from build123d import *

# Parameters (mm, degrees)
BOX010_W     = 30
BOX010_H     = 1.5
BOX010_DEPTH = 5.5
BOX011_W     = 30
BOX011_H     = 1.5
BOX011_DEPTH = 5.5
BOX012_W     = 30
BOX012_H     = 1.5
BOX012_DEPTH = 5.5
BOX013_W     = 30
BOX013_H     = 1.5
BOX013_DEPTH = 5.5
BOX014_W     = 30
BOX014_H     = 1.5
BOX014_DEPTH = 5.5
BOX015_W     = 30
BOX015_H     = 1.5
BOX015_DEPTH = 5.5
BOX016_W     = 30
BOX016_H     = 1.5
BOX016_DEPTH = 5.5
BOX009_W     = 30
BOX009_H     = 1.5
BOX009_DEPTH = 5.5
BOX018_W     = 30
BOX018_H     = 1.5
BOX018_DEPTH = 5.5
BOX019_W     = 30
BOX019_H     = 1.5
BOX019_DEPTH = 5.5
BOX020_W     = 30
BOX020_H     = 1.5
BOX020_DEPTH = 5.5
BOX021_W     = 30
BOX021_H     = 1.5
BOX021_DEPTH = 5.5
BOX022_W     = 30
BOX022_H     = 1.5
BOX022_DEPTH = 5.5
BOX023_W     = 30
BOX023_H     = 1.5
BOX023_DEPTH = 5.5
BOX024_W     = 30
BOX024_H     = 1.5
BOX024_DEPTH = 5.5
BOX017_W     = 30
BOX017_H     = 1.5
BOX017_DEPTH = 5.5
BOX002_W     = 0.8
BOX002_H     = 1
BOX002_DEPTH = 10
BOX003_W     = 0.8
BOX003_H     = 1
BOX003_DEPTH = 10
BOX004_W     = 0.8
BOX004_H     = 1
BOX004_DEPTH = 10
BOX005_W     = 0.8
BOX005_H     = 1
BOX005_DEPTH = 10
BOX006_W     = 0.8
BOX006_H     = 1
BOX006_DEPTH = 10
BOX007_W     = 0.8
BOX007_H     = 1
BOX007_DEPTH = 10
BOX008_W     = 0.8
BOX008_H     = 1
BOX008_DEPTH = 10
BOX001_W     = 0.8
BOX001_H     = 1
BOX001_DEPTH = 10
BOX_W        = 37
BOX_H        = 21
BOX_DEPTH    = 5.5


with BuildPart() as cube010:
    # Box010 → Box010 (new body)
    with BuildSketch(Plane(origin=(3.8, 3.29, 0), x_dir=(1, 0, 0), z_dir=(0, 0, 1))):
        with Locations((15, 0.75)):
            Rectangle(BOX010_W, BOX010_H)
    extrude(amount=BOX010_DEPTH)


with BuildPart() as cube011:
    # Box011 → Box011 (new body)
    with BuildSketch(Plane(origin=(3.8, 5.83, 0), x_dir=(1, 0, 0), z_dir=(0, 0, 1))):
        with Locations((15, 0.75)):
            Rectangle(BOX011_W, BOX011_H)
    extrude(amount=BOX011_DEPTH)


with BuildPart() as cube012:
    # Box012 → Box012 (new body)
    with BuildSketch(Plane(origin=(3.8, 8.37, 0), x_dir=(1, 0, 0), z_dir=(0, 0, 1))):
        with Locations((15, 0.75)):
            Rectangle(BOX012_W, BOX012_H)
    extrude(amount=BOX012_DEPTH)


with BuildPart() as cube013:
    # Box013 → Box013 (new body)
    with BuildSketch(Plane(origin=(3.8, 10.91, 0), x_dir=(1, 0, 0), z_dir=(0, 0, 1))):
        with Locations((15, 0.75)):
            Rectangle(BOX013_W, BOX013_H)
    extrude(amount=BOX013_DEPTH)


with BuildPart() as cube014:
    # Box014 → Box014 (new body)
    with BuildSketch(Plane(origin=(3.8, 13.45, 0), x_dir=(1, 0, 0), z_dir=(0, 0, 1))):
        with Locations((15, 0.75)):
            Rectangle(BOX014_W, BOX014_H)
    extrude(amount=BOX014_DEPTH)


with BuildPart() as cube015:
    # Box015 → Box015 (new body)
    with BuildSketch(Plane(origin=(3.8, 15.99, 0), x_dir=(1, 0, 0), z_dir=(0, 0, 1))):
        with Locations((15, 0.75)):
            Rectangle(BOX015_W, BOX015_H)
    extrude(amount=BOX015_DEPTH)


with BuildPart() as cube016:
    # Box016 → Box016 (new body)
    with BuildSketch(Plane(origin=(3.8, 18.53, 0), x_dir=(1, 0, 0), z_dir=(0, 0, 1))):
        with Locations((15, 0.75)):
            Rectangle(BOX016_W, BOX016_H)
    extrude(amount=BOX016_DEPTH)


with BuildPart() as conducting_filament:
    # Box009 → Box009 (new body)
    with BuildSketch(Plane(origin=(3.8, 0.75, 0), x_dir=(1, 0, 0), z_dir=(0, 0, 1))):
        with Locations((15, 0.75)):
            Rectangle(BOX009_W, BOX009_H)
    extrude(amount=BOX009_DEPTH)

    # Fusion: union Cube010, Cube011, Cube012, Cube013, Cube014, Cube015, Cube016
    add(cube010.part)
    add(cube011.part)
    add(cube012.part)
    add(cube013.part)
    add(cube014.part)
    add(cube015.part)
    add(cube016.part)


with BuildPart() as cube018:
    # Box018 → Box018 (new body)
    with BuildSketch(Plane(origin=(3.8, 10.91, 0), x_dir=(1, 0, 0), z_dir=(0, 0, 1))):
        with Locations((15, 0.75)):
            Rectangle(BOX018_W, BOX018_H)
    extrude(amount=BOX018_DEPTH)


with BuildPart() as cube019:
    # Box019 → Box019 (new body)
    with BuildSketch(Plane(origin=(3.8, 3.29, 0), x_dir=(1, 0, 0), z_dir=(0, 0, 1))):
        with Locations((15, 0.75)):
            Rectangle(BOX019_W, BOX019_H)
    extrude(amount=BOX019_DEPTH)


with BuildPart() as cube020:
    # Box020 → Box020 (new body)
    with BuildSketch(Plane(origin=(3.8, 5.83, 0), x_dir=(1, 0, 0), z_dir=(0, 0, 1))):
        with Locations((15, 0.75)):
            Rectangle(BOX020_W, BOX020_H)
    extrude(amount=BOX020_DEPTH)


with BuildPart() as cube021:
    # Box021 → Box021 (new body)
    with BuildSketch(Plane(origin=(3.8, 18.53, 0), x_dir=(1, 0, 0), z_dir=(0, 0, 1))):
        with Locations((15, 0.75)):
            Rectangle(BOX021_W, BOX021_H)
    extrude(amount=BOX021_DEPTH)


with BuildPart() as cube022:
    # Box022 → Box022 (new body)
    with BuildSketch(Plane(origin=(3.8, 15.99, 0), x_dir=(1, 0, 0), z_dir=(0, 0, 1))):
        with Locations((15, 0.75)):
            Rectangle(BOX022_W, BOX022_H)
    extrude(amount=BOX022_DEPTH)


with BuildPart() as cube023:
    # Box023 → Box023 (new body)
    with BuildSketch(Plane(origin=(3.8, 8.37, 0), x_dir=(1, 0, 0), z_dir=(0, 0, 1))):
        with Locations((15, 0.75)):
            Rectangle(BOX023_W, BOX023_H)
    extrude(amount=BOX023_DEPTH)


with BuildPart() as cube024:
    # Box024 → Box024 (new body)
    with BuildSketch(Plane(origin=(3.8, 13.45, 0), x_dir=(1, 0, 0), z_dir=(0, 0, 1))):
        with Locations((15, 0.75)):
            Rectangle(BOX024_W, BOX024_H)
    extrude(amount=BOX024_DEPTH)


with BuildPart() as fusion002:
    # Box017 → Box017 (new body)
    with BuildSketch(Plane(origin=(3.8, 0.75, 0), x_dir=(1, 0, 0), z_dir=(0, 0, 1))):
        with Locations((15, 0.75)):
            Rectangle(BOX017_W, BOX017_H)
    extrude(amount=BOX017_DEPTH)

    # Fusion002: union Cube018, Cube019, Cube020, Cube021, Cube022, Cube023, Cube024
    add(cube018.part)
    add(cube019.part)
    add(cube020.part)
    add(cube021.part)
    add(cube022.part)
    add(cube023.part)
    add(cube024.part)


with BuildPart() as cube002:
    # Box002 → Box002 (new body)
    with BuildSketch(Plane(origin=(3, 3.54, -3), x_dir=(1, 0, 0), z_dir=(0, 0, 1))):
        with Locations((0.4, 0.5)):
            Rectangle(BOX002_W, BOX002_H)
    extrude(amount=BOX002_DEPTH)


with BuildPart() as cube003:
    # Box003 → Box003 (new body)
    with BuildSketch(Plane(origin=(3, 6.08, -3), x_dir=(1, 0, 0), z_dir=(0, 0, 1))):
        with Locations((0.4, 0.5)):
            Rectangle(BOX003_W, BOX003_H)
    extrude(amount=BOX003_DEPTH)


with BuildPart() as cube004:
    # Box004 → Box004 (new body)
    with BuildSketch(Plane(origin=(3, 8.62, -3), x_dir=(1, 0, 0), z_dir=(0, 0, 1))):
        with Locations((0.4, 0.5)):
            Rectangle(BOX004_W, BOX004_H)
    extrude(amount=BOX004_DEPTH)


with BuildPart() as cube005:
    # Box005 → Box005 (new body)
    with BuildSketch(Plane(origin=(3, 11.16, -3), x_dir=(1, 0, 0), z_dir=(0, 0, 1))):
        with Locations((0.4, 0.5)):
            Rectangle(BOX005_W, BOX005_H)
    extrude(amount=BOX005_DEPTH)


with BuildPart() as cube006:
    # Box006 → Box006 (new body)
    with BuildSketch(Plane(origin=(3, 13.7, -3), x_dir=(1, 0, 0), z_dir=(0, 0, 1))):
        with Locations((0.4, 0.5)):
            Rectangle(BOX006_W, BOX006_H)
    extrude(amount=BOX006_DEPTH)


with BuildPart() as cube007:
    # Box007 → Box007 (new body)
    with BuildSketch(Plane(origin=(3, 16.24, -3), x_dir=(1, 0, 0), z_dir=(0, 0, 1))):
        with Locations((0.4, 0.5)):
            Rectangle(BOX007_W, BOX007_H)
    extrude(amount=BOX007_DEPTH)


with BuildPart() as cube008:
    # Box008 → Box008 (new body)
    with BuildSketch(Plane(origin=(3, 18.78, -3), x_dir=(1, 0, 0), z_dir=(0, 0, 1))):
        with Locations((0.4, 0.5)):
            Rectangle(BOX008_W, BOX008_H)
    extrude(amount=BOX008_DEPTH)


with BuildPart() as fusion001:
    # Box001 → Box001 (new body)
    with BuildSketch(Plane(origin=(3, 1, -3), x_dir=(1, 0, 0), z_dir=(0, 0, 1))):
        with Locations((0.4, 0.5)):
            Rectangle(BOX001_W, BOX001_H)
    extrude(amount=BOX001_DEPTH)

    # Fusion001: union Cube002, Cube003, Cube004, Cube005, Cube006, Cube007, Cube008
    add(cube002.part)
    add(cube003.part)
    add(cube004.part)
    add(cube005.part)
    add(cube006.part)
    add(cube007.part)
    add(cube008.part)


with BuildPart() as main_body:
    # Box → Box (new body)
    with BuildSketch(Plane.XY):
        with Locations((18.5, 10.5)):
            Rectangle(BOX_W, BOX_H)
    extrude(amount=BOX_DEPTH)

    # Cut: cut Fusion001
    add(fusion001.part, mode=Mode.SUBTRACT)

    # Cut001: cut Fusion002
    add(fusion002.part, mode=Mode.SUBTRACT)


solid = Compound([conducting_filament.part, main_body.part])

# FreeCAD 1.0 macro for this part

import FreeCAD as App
import Part
import Sketcher
Q = App.Units.Quantity

doc = App.newDocument("Part")
body = doc.addObject("PartDesign::Body", "Body")

# Sketch on XY plane
sketch1 = doc.addObject("Sketcher::SketchObject", "Sketch")
body.addObject(sketch1)
sketch1.AttachmentSupport = (doc.XY_Plane, [""])
sketch1.MapMode = "FlatFace"
sketch1.addGeometry([
    Part.LineSegment(App.Vector(3.8, 4.79, 0), App.Vector(3.8, 3.29, 0)),
    Part.LineSegment(App.Vector(3.8, 3.29, 0), App.Vector(33.8, 3.29, 0)),
    Part.LineSegment(App.Vector(33.8, 3.29, 0), App.Vector(33.8, 4.79, 0)),
    Part.LineSegment(App.Vector(33.8, 4.79, 0), App.Vector(3.8, 4.79, 0)),
], False)
sketch1.addConstraint([
    Sketcher.Constraint("Coincident", 0, 2, 1, 1),
    Sketcher.Constraint("Coincident", 1, 2, 2, 1),
    Sketcher.Constraint("Coincident", 2, 2, 3, 1),
    Sketcher.Constraint("Coincident", 3, 2, 0, 1),
    Sketcher.Constraint("Vertical", 0),
    Sketcher.Constraint("Horizontal", 1),
    Sketcher.Constraint("Vertical", 2),
    Sketcher.Constraint("Horizontal", 3),
    Sketcher.Constraint("DistanceX", 1, 1, 1, 2, Q("30 mm")),
    Sketcher.Constraint("DistanceY", 0, 2, 0, 1, Q("1.5 mm")),
    Sketcher.Constraint("DistanceX", -1, 1, 0, 2, Q("3.8 mm")),
    Sketcher.Constraint("DistanceY", -1, 1, 0, 2, Q("3.29 mm")),
])
pad1 = doc.addObject("PartDesign::Pad", "Pad")
body.addObject(pad1)
pad1.Profile = sketch1
pad1.Length = 5.5
body2 = doc.addObject("PartDesign::Body", "Body001")

# Sketch on XY plane
sketch2 = doc.addObject("Sketcher::SketchObject", "Sketch001")
body2.addObject(sketch2)
sketch2.AttachmentSupport = (doc.getObject("XY_Plane001"), [""])
sketch2.MapMode = "FlatFace"
sketch2.addGeometry([
    Part.LineSegment(App.Vector(3.8, 7.33, 0), App.Vector(3.8, 5.83, 0)),
    Part.LineSegment(App.Vector(3.8, 5.83, 0), App.Vector(33.8, 5.83, 0)),
    Part.LineSegment(App.Vector(33.8, 5.83, 0), App.Vector(33.8, 7.33, 0)),
    Part.LineSegment(App.Vector(33.8, 7.33, 0), App.Vector(3.8, 7.33, 0)),
], False)
sketch2.addConstraint([
    Sketcher.Constraint("Coincident", 0, 2, 1, 1),
    Sketcher.Constraint("Coincident", 1, 2, 2, 1),
    Sketcher.Constraint("Coincident", 2, 2, 3, 1),
    Sketcher.Constraint("Coincident", 3, 2, 0, 1),
    Sketcher.Constraint("Vertical", 0),
    Sketcher.Constraint("Horizontal", 1),
    Sketcher.Constraint("Vertical", 2),
    Sketcher.Constraint("Horizontal", 3),
    Sketcher.Constraint("DistanceX", 1, 1, 1, 2, Q("30 mm")),
    Sketcher.Constraint("DistanceY", 0, 2, 0, 1, Q("1.5 mm")),
    Sketcher.Constraint("DistanceX", -1, 1, 0, 2, Q("3.8 mm")),
    Sketcher.Constraint("DistanceY", -1, 1, 0, 2, Q("5.83 mm")),
])
pad2 = doc.addObject("PartDesign::Pad", "Pad001")
body2.addObject(pad2)
pad2.Profile = sketch2
pad2.Length = 5.5
body3 = doc.addObject("PartDesign::Body", "Body002")

# Sketch on XY plane
sketch3 = doc.addObject("Sketcher::SketchObject", "Sketch002")
body3.addObject(sketch3)
sketch3.AttachmentSupport = (doc.getObject("XY_Plane002"), [""])
sketch3.MapMode = "FlatFace"
sketch3.addGeometry([
    Part.LineSegment(App.Vector(3.8, 9.87, 0), App.Vector(3.8, 8.37, 0)),
    Part.LineSegment(App.Vector(3.8, 8.37, 0), App.Vector(33.8, 8.37, 0)),
    Part.LineSegment(App.Vector(33.8, 8.37, 0), App.Vector(33.8, 9.87, 0)),
    Part.LineSegment(App.Vector(33.8, 9.87, 0), App.Vector(3.8, 9.87, 0)),
], False)
sketch3.addConstraint([
    Sketcher.Constraint("Coincident", 0, 2, 1, 1),
    Sketcher.Constraint("Coincident", 1, 2, 2, 1),
    Sketcher.Constraint("Coincident", 2, 2, 3, 1),
    Sketcher.Constraint("Coincident", 3, 2, 0, 1),
    Sketcher.Constraint("Vertical", 0),
    Sketcher.Constraint("Horizontal", 1),
    Sketcher.Constraint("Vertical", 2),
    Sketcher.Constraint("Horizontal", 3),
    Sketcher.Constraint("DistanceX", 1, 1, 1, 2, Q("30 mm")),
    Sketcher.Constraint("DistanceY", 0, 2, 0, 1, Q("1.5 mm")),
    Sketcher.Constraint("DistanceX", -1, 1, 0, 2, Q("3.8 mm")),
    Sketcher.Constraint("DistanceY", -1, 1, 0, 2, Q("8.37 mm")),
])
pad3 = doc.addObject("PartDesign::Pad", "Pad002")
body3.addObject(pad3)
pad3.Profile = sketch3
pad3.Length = 5.5
body4 = doc.addObject("PartDesign::Body", "Body003")

# Sketch on XY plane
sketch4 = doc.addObject("Sketcher::SketchObject", "Sketch003")
body4.addObject(sketch4)
sketch4.AttachmentSupport = (doc.getObject("XY_Plane003"), [""])
sketch4.MapMode = "FlatFace"
sketch4.addGeometry([
    Part.LineSegment(App.Vector(3.8, 12.41, 0), App.Vector(3.8, 10.91, 0)),
    Part.LineSegment(App.Vector(3.8, 10.91, 0), App.Vector(33.8, 10.91, 0)),
    Part.LineSegment(App.Vector(33.8, 10.91, 0), App.Vector(33.8, 12.41, 0)),
    Part.LineSegment(App.Vector(33.8, 12.41, 0), App.Vector(3.8, 12.41, 0)),
], False)
sketch4.addConstraint([
    Sketcher.Constraint("Coincident", 0, 2, 1, 1),
    Sketcher.Constraint("Coincident", 1, 2, 2, 1),
    Sketcher.Constraint("Coincident", 2, 2, 3, 1),
    Sketcher.Constraint("Coincident", 3, 2, 0, 1),
    Sketcher.Constraint("Vertical", 0),
    Sketcher.Constraint("Horizontal", 1),
    Sketcher.Constraint("Vertical", 2),
    Sketcher.Constraint("Horizontal", 3),
    Sketcher.Constraint("DistanceX", 1, 1, 1, 2, Q("30 mm")),
    Sketcher.Constraint("DistanceY", 0, 2, 0, 1, Q("1.5 mm")),
    Sketcher.Constraint("DistanceX", -1, 1, 0, 2, Q("3.8 mm")),
    Sketcher.Constraint("DistanceY", -1, 1, 0, 2, Q("10.91 mm")),
])
pad4 = doc.addObject("PartDesign::Pad", "Pad003")
body4.addObject(pad4)
pad4.Profile = sketch4
pad4.Length = 5.5
body5 = doc.addObject("PartDesign::Body", "Body004")

# Sketch on XY plane
sketch5 = doc.addObject("Sketcher::SketchObject", "Sketch004")
body5.addObject(sketch5)
sketch5.AttachmentSupport = (doc.getObject("XY_Plane004"), [""])
sketch5.MapMode = "FlatFace"
sketch5.addGeometry([
    Part.LineSegment(App.Vector(3.8, 14.95, 0), App.Vector(3.8, 13.45, 0)),
    Part.LineSegment(App.Vector(3.8, 13.45, 0), App.Vector(33.8, 13.45, 0)),
    Part.LineSegment(App.Vector(33.8, 13.45, 0), App.Vector(33.8, 14.95, 0)),
    Part.LineSegment(App.Vector(33.8, 14.95, 0), App.Vector(3.8, 14.95, 0)),
], False)
sketch5.addConstraint([
    Sketcher.Constraint("Coincident", 0, 2, 1, 1),
    Sketcher.Constraint("Coincident", 1, 2, 2, 1),
    Sketcher.Constraint("Coincident", 2, 2, 3, 1),
    Sketcher.Constraint("Coincident", 3, 2, 0, 1),
    Sketcher.Constraint("Vertical", 0),
    Sketcher.Constraint("Horizontal", 1),
    Sketcher.Constraint("Vertical", 2),
    Sketcher.Constraint("Horizontal", 3),
    Sketcher.Constraint("DistanceX", 1, 1, 1, 2, Q("30 mm")),
    Sketcher.Constraint("DistanceY", 0, 2, 0, 1, Q("1.5 mm")),
    Sketcher.Constraint("DistanceX", -1, 1, 0, 2, Q("3.8 mm")),
    Sketcher.Constraint("DistanceY", -1, 1, 0, 2, Q("13.45 mm")),
])
pad5 = doc.addObject("PartDesign::Pad", "Pad004")
body5.addObject(pad5)
pad5.Profile = sketch5
pad5.Length = 5.5
body6 = doc.addObject("PartDesign::Body", "Body005")

# Sketch on XY plane
sketch6 = doc.addObject("Sketcher::SketchObject", "Sketch005")
body6.addObject(sketch6)
sketch6.AttachmentSupport = (doc.getObject("XY_Plane005"), [""])
sketch6.MapMode = "FlatFace"
sketch6.addGeometry([
    Part.LineSegment(App.Vector(3.8, 17.49, 0), App.Vector(3.8, 15.99, 0)),
    Part.LineSegment(App.Vector(3.8, 15.99, 0), App.Vector(33.8, 15.99, 0)),
    Part.LineSegment(App.Vector(33.8, 15.99, 0), App.Vector(33.8, 17.49, 0)),
    Part.LineSegment(App.Vector(33.8, 17.49, 0), App.Vector(3.8, 17.49, 0)),
], False)
sketch6.addConstraint([
    Sketcher.Constraint("Coincident", 0, 2, 1, 1),
    Sketcher.Constraint("Coincident", 1, 2, 2, 1),
    Sketcher.Constraint("Coincident", 2, 2, 3, 1),
    Sketcher.Constraint("Coincident", 3, 2, 0, 1),
    Sketcher.Constraint("Vertical", 0),
    Sketcher.Constraint("Horizontal", 1),
    Sketcher.Constraint("Vertical", 2),
    Sketcher.Constraint("Horizontal", 3),
    Sketcher.Constraint("DistanceX", 1, 1, 1, 2, Q("30 mm")),
    Sketcher.Constraint("DistanceY", 0, 2, 0, 1, Q("1.5 mm")),
    Sketcher.Constraint("DistanceX", -1, 1, 0, 2, Q("3.8 mm")),
    Sketcher.Constraint("DistanceY", -1, 1, 0, 2, Q("15.99 mm")),
])
pad6 = doc.addObject("PartDesign::Pad", "Pad005")
body6.addObject(pad6)
pad6.Profile = sketch6
pad6.Length = 5.5
body7 = doc.addObject("PartDesign::Body", "Body006")

# Sketch on XY plane
sketch7 = doc.addObject("Sketcher::SketchObject", "Sketch006")
body7.addObject(sketch7)
sketch7.AttachmentSupport = (doc.getObject("XY_Plane006"), [""])
sketch7.MapMode = "FlatFace"
sketch7.addGeometry([
    Part.LineSegment(App.Vector(3.8, 20.03, 0), App.Vector(3.8, 18.53, 0)),
    Part.LineSegment(App.Vector(3.8, 18.53, 0), App.Vector(33.8, 18.53, 0)),
    Part.LineSegment(App.Vector(33.8, 18.53, 0), App.Vector(33.8, 20.03, 0)),
    Part.LineSegment(App.Vector(33.8, 20.03, 0), App.Vector(3.8, 20.03, 0)),
], False)
sketch7.addConstraint([
    Sketcher.Constraint("Coincident", 0, 2, 1, 1),
    Sketcher.Constraint("Coincident", 1, 2, 2, 1),
    Sketcher.Constraint("Coincident", 2, 2, 3, 1),
    Sketcher.Constraint("Coincident", 3, 2, 0, 1),
    Sketcher.Constraint("Vertical", 0),
    Sketcher.Constraint("Horizontal", 1),
    Sketcher.Constraint("Vertical", 2),
    Sketcher.Constraint("Horizontal", 3),
    Sketcher.Constraint("DistanceX", 1, 1, 1, 2, Q("30 mm")),
    Sketcher.Constraint("DistanceY", 0, 2, 0, 1, Q("1.5 mm")),
    Sketcher.Constraint("DistanceX", -1, 1, 0, 2, Q("3.8 mm")),
    Sketcher.Constraint("DistanceY", -1, 1, 0, 2, Q("18.53 mm")),
])
pad7 = doc.addObject("PartDesign::Pad", "Pad006")
body7.addObject(pad7)
pad7.Profile = sketch7
pad7.Length = 5.5
body8 = doc.addObject("PartDesign::Body", "Body007")
body8.AllowCompound = True

# Sketch on XY plane
sketch8 = doc.addObject("Sketcher::SketchObject", "Sketch007")
body8.addObject(sketch8)
sketch8.AttachmentSupport = (doc.getObject("XY_Plane007"), [""])
sketch8.MapMode = "FlatFace"
sketch8.addGeometry([
    Part.LineSegment(App.Vector(3.8, 2.25, 0), App.Vector(3.8, 0.75, 0)),
    Part.LineSegment(App.Vector(3.8, 0.75, 0), App.Vector(33.8, 0.75, 0)),
    Part.LineSegment(App.Vector(33.8, 0.75, 0), App.Vector(33.8, 2.25, 0)),
    Part.LineSegment(App.Vector(33.8, 2.25, 0), App.Vector(3.8, 2.25, 0)),
], False)
sketch8.addConstraint([
    Sketcher.Constraint("Coincident", 0, 2, 1, 1),
    Sketcher.Constraint("Coincident", 1, 2, 2, 1),
    Sketcher.Constraint("Coincident", 2, 2, 3, 1),
    Sketcher.Constraint("Coincident", 3, 2, 0, 1),
    Sketcher.Constraint("Vertical", 0),
    Sketcher.Constraint("Horizontal", 1),
    Sketcher.Constraint("Vertical", 2),
    Sketcher.Constraint("Horizontal", 3),
    Sketcher.Constraint("DistanceX", 1, 1, 1, 2, Q("30 mm")),
    Sketcher.Constraint("DistanceY", 0, 2, 0, 1, Q("1.5 mm")),
    Sketcher.Constraint("DistanceX", -1, 1, 0, 2, Q("3.8 mm")),
    Sketcher.Constraint("DistanceY", -1, 1, 0, 2, Q("0.75 mm")),
])
pad8 = doc.addObject("PartDesign::Pad", "Pad007")
body8.addObject(pad8)
pad8.Profile = sketch8
pad8.Length = 5.5
doc.recompute()

boolean = doc.addObject("PartDesign::Boolean", "Boolean")
body8.addObject(boolean)
boolean.Type = "Fuse"
boolean.addObjects([body])
doc.recompute()

boolean2 = doc.addObject("PartDesign::Boolean", "Boolean001")
body8.addObject(boolean2)
boolean2.Type = "Fuse"
boolean2.addObjects([body2])
doc.recompute()

boolean3 = doc.addObject("PartDesign::Boolean", "Boolean002")
body8.addObject(boolean3)
boolean3.Type = "Fuse"
boolean3.addObjects([body3])
doc.recompute()

boolean4 = doc.addObject("PartDesign::Boolean", "Boolean003")
body8.addObject(boolean4)
boolean4.Type = "Fuse"
boolean4.addObjects([body4])
doc.recompute()

boolean5 = doc.addObject("PartDesign::Boolean", "Boolean004")
body8.addObject(boolean5)
boolean5.Type = "Fuse"
boolean5.addObjects([body5])
doc.recompute()

boolean6 = doc.addObject("PartDesign::Boolean", "Boolean005")
body8.addObject(boolean6)
boolean6.Type = "Fuse"
boolean6.addObjects([body6])
doc.recompute()

boolean7 = doc.addObject("PartDesign::Boolean", "Boolean006")
body8.addObject(boolean7)
boolean7.Type = "Fuse"
boolean7.addObjects([body7])
body9 = doc.addObject("PartDesign::Body", "Body008")

# Sketch on XY plane
sketch9 = doc.addObject("Sketcher::SketchObject", "Sketch008")
body9.addObject(sketch9)
sketch9.AttachmentSupport = (doc.getObject("XY_Plane008"), [""])
sketch9.MapMode = "FlatFace"
sketch9.addGeometry([
    Part.LineSegment(App.Vector(3.8, 12.41, 0), App.Vector(3.8, 10.91, 0)),
    Part.LineSegment(App.Vector(3.8, 10.91, 0), App.Vector(33.8, 10.91, 0)),
    Part.LineSegment(App.Vector(33.8, 10.91, 0), App.Vector(33.8, 12.41, 0)),
    Part.LineSegment(App.Vector(33.8, 12.41, 0), App.Vector(3.8, 12.41, 0)),
], False)
sketch9.addConstraint([
    Sketcher.Constraint("Coincident", 0, 2, 1, 1),
    Sketcher.Constraint("Coincident", 1, 2, 2, 1),
    Sketcher.Constraint("Coincident", 2, 2, 3, 1),
    Sketcher.Constraint("Coincident", 3, 2, 0, 1),
    Sketcher.Constraint("Vertical", 0),
    Sketcher.Constraint("Horizontal", 1),
    Sketcher.Constraint("Vertical", 2),
    Sketcher.Constraint("Horizontal", 3),
    Sketcher.Constraint("DistanceX", 1, 1, 1, 2, Q("30 mm")),
    Sketcher.Constraint("DistanceY", 0, 2, 0, 1, Q("1.5 mm")),
    Sketcher.Constraint("DistanceX", -1, 1, 0, 2, Q("3.8 mm")),
    Sketcher.Constraint("DistanceY", -1, 1, 0, 2, Q("10.91 mm")),
])
pad9 = doc.addObject("PartDesign::Pad", "Pad008")
body9.addObject(pad9)
pad9.Profile = sketch9
pad9.Length = 5.5
body10 = doc.addObject("PartDesign::Body", "Body009")

# Sketch on XY plane
sketch10 = doc.addObject("Sketcher::SketchObject", "Sketch009")
body10.addObject(sketch10)
sketch10.AttachmentSupport = (doc.getObject("XY_Plane009"), [""])
sketch10.MapMode = "FlatFace"
sketch10.addGeometry([
    Part.LineSegment(App.Vector(3.8, 4.79, 0), App.Vector(3.8, 3.29, 0)),
    Part.LineSegment(App.Vector(3.8, 3.29, 0), App.Vector(33.8, 3.29, 0)),
    Part.LineSegment(App.Vector(33.8, 3.29, 0), App.Vector(33.8, 4.79, 0)),
    Part.LineSegment(App.Vector(33.8, 4.79, 0), App.Vector(3.8, 4.79, 0)),
], False)
sketch10.addConstraint([
    Sketcher.Constraint("Coincident", 0, 2, 1, 1),
    Sketcher.Constraint("Coincident", 1, 2, 2, 1),
    Sketcher.Constraint("Coincident", 2, 2, 3, 1),
    Sketcher.Constraint("Coincident", 3, 2, 0, 1),
    Sketcher.Constraint("Vertical", 0),
    Sketcher.Constraint("Horizontal", 1),
    Sketcher.Constraint("Vertical", 2),
    Sketcher.Constraint("Horizontal", 3),
    Sketcher.Constraint("DistanceX", 1, 1, 1, 2, Q("30 mm")),
    Sketcher.Constraint("DistanceY", 0, 2, 0, 1, Q("1.5 mm")),
    Sketcher.Constraint("DistanceX", -1, 1, 0, 2, Q("3.8 mm")),
    Sketcher.Constraint("DistanceY", -1, 1, 0, 2, Q("3.29 mm")),
])
pad10 = doc.addObject("PartDesign::Pad", "Pad009")
body10.addObject(pad10)
pad10.Profile = sketch10
pad10.Length = 5.5
body11 = doc.addObject("PartDesign::Body", "Body010")

# Sketch on XY plane
sketch11 = doc.addObject("Sketcher::SketchObject", "Sketch010")
body11.addObject(sketch11)
sketch11.AttachmentSupport = (doc.getObject("XY_Plane010"), [""])
sketch11.MapMode = "FlatFace"
sketch11.addGeometry([
    Part.LineSegment(App.Vector(3.8, 7.33, 0), App.Vector(3.8, 5.83, 0)),
    Part.LineSegment(App.Vector(3.8, 5.83, 0), App.Vector(33.8, 5.83, 0)),
    Part.LineSegment(App.Vector(33.8, 5.83, 0), App.Vector(33.8, 7.33, 0)),
    Part.LineSegment(App.Vector(33.8, 7.33, 0), App.Vector(3.8, 7.33, 0)),
], False)
sketch11.addConstraint([
    Sketcher.Constraint("Coincident", 0, 2, 1, 1),
    Sketcher.Constraint("Coincident", 1, 2, 2, 1),
    Sketcher.Constraint("Coincident", 2, 2, 3, 1),
    Sketcher.Constraint("Coincident", 3, 2, 0, 1),
    Sketcher.Constraint("Vertical", 0),
    Sketcher.Constraint("Horizontal", 1),
    Sketcher.Constraint("Vertical", 2),
    Sketcher.Constraint("Horizontal", 3),
    Sketcher.Constraint("DistanceX", 1, 1, 1, 2, Q("30 mm")),
    Sketcher.Constraint("DistanceY", 0, 2, 0, 1, Q("1.5 mm")),
    Sketcher.Constraint("DistanceX", -1, 1, 0, 2, Q("3.8 mm")),
    Sketcher.Constraint("DistanceY", -1, 1, 0, 2, Q("5.83 mm")),
])
pad11 = doc.addObject("PartDesign::Pad", "Pad010")
body11.addObject(pad11)
pad11.Profile = sketch11
pad11.Length = 5.5
body12 = doc.addObject("PartDesign::Body", "Body011")

# Sketch on XY plane
sketch12 = doc.addObject("Sketcher::SketchObject", "Sketch011")
body12.addObject(sketch12)
sketch12.AttachmentSupport = (doc.getObject("XY_Plane011"), [""])
sketch12.MapMode = "FlatFace"
sketch12.addGeometry([
    Part.LineSegment(App.Vector(3.8, 20.03, 0), App.Vector(3.8, 18.53, 0)),
    Part.LineSegment(App.Vector(3.8, 18.53, 0), App.Vector(33.8, 18.53, 0)),
    Part.LineSegment(App.Vector(33.8, 18.53, 0), App.Vector(33.8, 20.03, 0)),
    Part.LineSegment(App.Vector(33.8, 20.03, 0), App.Vector(3.8, 20.03, 0)),
], False)
sketch12.addConstraint([
    Sketcher.Constraint("Coincident", 0, 2, 1, 1),
    Sketcher.Constraint("Coincident", 1, 2, 2, 1),
    Sketcher.Constraint("Coincident", 2, 2, 3, 1),
    Sketcher.Constraint("Coincident", 3, 2, 0, 1),
    Sketcher.Constraint("Vertical", 0),
    Sketcher.Constraint("Horizontal", 1),
    Sketcher.Constraint("Vertical", 2),
    Sketcher.Constraint("Horizontal", 3),
    Sketcher.Constraint("DistanceX", 1, 1, 1, 2, Q("30 mm")),
    Sketcher.Constraint("DistanceY", 0, 2, 0, 1, Q("1.5 mm")),
    Sketcher.Constraint("DistanceX", -1, 1, 0, 2, Q("3.8 mm")),
    Sketcher.Constraint("DistanceY", -1, 1, 0, 2, Q("18.53 mm")),
])
pad12 = doc.addObject("PartDesign::Pad", "Pad011")
body12.addObject(pad12)
pad12.Profile = sketch12
pad12.Length = 5.5
body13 = doc.addObject("PartDesign::Body", "Body012")

# Sketch on XY plane
sketch13 = doc.addObject("Sketcher::SketchObject", "Sketch012")
body13.addObject(sketch13)
sketch13.AttachmentSupport = (doc.getObject("XY_Plane012"), [""])
sketch13.MapMode = "FlatFace"
sketch13.addGeometry([
    Part.LineSegment(App.Vector(3.8, 17.49, 0), App.Vector(3.8, 15.99, 0)),
    Part.LineSegment(App.Vector(3.8, 15.99, 0), App.Vector(33.8, 15.99, 0)),
    Part.LineSegment(App.Vector(33.8, 15.99, 0), App.Vector(33.8, 17.49, 0)),
    Part.LineSegment(App.Vector(33.8, 17.49, 0), App.Vector(3.8, 17.49, 0)),
], False)
sketch13.addConstraint([
    Sketcher.Constraint("Coincident", 0, 2, 1, 1),
    Sketcher.Constraint("Coincident", 1, 2, 2, 1),
    Sketcher.Constraint("Coincident", 2, 2, 3, 1),
    Sketcher.Constraint("Coincident", 3, 2, 0, 1),
    Sketcher.Constraint("Vertical", 0),
    Sketcher.Constraint("Horizontal", 1),
    Sketcher.Constraint("Vertical", 2),
    Sketcher.Constraint("Horizontal", 3),
    Sketcher.Constraint("DistanceX", 1, 1, 1, 2, Q("30 mm")),
    Sketcher.Constraint("DistanceY", 0, 2, 0, 1, Q("1.5 mm")),
    Sketcher.Constraint("DistanceX", -1, 1, 0, 2, Q("3.8 mm")),
    Sketcher.Constraint("DistanceY", -1, 1, 0, 2, Q("15.99 mm")),
])
pad13 = doc.addObject("PartDesign::Pad", "Pad012")
body13.addObject(pad13)
pad13.Profile = sketch13
pad13.Length = 5.5
body14 = doc.addObject("PartDesign::Body", "Body013")

# Sketch on XY plane
sketch14 = doc.addObject("Sketcher::SketchObject", "Sketch013")
body14.addObject(sketch14)
sketch14.AttachmentSupport = (doc.getObject("XY_Plane013"), [""])
sketch14.MapMode = "FlatFace"
sketch14.addGeometry([
    Part.LineSegment(App.Vector(3.8, 9.87, 0), App.Vector(3.8, 8.37, 0)),
    Part.LineSegment(App.Vector(3.8, 8.37, 0), App.Vector(33.8, 8.37, 0)),
    Part.LineSegment(App.Vector(33.8, 8.37, 0), App.Vector(33.8, 9.87, 0)),
    Part.LineSegment(App.Vector(33.8, 9.87, 0), App.Vector(3.8, 9.87, 0)),
], False)
sketch14.addConstraint([
    Sketcher.Constraint("Coincident", 0, 2, 1, 1),
    Sketcher.Constraint("Coincident", 1, 2, 2, 1),
    Sketcher.Constraint("Coincident", 2, 2, 3, 1),
    Sketcher.Constraint("Coincident", 3, 2, 0, 1),
    Sketcher.Constraint("Vertical", 0),
    Sketcher.Constraint("Horizontal", 1),
    Sketcher.Constraint("Vertical", 2),
    Sketcher.Constraint("Horizontal", 3),
    Sketcher.Constraint("DistanceX", 1, 1, 1, 2, Q("30 mm")),
    Sketcher.Constraint("DistanceY", 0, 2, 0, 1, Q("1.5 mm")),
    Sketcher.Constraint("DistanceX", -1, 1, 0, 2, Q("3.8 mm")),
    Sketcher.Constraint("DistanceY", -1, 1, 0, 2, Q("8.37 mm")),
])
pad14 = doc.addObject("PartDesign::Pad", "Pad013")
body14.addObject(pad14)
pad14.Profile = sketch14
pad14.Length = 5.5
body15 = doc.addObject("PartDesign::Body", "Body014")

# Sketch on XY plane
sketch15 = doc.addObject("Sketcher::SketchObject", "Sketch014")
body15.addObject(sketch15)
sketch15.AttachmentSupport = (doc.getObject("XY_Plane014"), [""])
sketch15.MapMode = "FlatFace"
sketch15.addGeometry([
    Part.LineSegment(App.Vector(3.8, 14.95, 0), App.Vector(3.8, 13.45, 0)),
    Part.LineSegment(App.Vector(3.8, 13.45, 0), App.Vector(33.8, 13.45, 0)),
    Part.LineSegment(App.Vector(33.8, 13.45, 0), App.Vector(33.8, 14.95, 0)),
    Part.LineSegment(App.Vector(33.8, 14.95, 0), App.Vector(3.8, 14.95, 0)),
], False)
sketch15.addConstraint([
    Sketcher.Constraint("Coincident", 0, 2, 1, 1),
    Sketcher.Constraint("Coincident", 1, 2, 2, 1),
    Sketcher.Constraint("Coincident", 2, 2, 3, 1),
    Sketcher.Constraint("Coincident", 3, 2, 0, 1),
    Sketcher.Constraint("Vertical", 0),
    Sketcher.Constraint("Horizontal", 1),
    Sketcher.Constraint("Vertical", 2),
    Sketcher.Constraint("Horizontal", 3),
    Sketcher.Constraint("DistanceX", 1, 1, 1, 2, Q("30 mm")),
    Sketcher.Constraint("DistanceY", 0, 2, 0, 1, Q("1.5 mm")),
    Sketcher.Constraint("DistanceX", -1, 1, 0, 2, Q("3.8 mm")),
    Sketcher.Constraint("DistanceY", -1, 1, 0, 2, Q("13.45 mm")),
])
pad15 = doc.addObject("PartDesign::Pad", "Pad014")
body15.addObject(pad15)
pad15.Profile = sketch15
pad15.Length = 5.5
body16 = doc.addObject("PartDesign::Body", "Body015")
body16.AllowCompound = True

# Sketch on XY plane
sketch16 = doc.addObject("Sketcher::SketchObject", "Sketch015")
body16.addObject(sketch16)
sketch16.AttachmentSupport = (doc.getObject("XY_Plane015"), [""])
sketch16.MapMode = "FlatFace"
sketch16.addGeometry([
    Part.LineSegment(App.Vector(3.8, 2.25, 0), App.Vector(3.8, 0.75, 0)),
    Part.LineSegment(App.Vector(3.8, 0.75, 0), App.Vector(33.8, 0.75, 0)),
    Part.LineSegment(App.Vector(33.8, 0.75, 0), App.Vector(33.8, 2.25, 0)),
    Part.LineSegment(App.Vector(33.8, 2.25, 0), App.Vector(3.8, 2.25, 0)),
], False)
sketch16.addConstraint([
    Sketcher.Constraint("Coincident", 0, 2, 1, 1),
    Sketcher.Constraint("Coincident", 1, 2, 2, 1),
    Sketcher.Constraint("Coincident", 2, 2, 3, 1),
    Sketcher.Constraint("Coincident", 3, 2, 0, 1),
    Sketcher.Constraint("Vertical", 0),
    Sketcher.Constraint("Horizontal", 1),
    Sketcher.Constraint("Vertical", 2),
    Sketcher.Constraint("Horizontal", 3),
    Sketcher.Constraint("DistanceX", 1, 1, 1, 2, Q("30 mm")),
    Sketcher.Constraint("DistanceY", 0, 2, 0, 1, Q("1.5 mm")),
    Sketcher.Constraint("DistanceX", -1, 1, 0, 2, Q("3.8 mm")),
    Sketcher.Constraint("DistanceY", -1, 1, 0, 2, Q("0.75 mm")),
])
pad16 = doc.addObject("PartDesign::Pad", "Pad015")
body16.addObject(pad16)
pad16.Profile = sketch16
pad16.Length = 5.5
doc.recompute()

boolean8 = doc.addObject("PartDesign::Boolean", "Boolean007")
body16.addObject(boolean8)
boolean8.Type = "Fuse"
boolean8.addObjects([body9])
doc.recompute()

boolean9 = doc.addObject("PartDesign::Boolean", "Boolean008")
body16.addObject(boolean9)
boolean9.Type = "Fuse"
boolean9.addObjects([body10])
doc.recompute()

boolean10 = doc.addObject("PartDesign::Boolean", "Boolean009")
body16.addObject(boolean10)
boolean10.Type = "Fuse"
boolean10.addObjects([body11])
doc.recompute()

boolean11 = doc.addObject("PartDesign::Boolean", "Boolean010")
body16.addObject(boolean11)
boolean11.Type = "Fuse"
boolean11.addObjects([body12])
doc.recompute()

boolean12 = doc.addObject("PartDesign::Boolean", "Boolean011")
body16.addObject(boolean12)
boolean12.Type = "Fuse"
boolean12.addObjects([body13])
doc.recompute()

boolean13 = doc.addObject("PartDesign::Boolean", "Boolean012")
body16.addObject(boolean13)
boolean13.Type = "Fuse"
boolean13.addObjects([body14])
doc.recompute()

boolean14 = doc.addObject("PartDesign::Boolean", "Boolean013")
body16.addObject(boolean14)
boolean14.Type = "Fuse"
boolean14.addObjects([body15])
body17 = doc.addObject("PartDesign::Body", "Body016")

# Sketch on XY plane
sketch17 = doc.addObject("Sketcher::SketchObject", "Sketch016")
body17.addObject(sketch17)
sketch17.AttachmentSupport = (doc.getObject("XY_Plane016"), [""])
sketch17.MapMode = "FlatFace"
sketch17.AttachmentOffset = App.Placement(App.Vector(0, 0, -3), App.Rotation())
sketch17.addGeometry([
    Part.LineSegment(App.Vector(3, 4.54, 0), App.Vector(3, 3.54, 0)),
    Part.LineSegment(App.Vector(3, 3.54, 0), App.Vector(3.8, 3.54, 0)),
    Part.LineSegment(App.Vector(3.8, 3.54, 0), App.Vector(3.8, 4.54, 0)),
    Part.LineSegment(App.Vector(3.8, 4.54, 0), App.Vector(3, 4.54, 0)),
], False)
sketch17.addConstraint([
    Sketcher.Constraint("Coincident", 0, 2, 1, 1),
    Sketcher.Constraint("Coincident", 1, 2, 2, 1),
    Sketcher.Constraint("Coincident", 2, 2, 3, 1),
    Sketcher.Constraint("Coincident", 3, 2, 0, 1),
    Sketcher.Constraint("Vertical", 0),
    Sketcher.Constraint("Horizontal", 1),
    Sketcher.Constraint("Vertical", 2),
    Sketcher.Constraint("Horizontal", 3),
    Sketcher.Constraint("DistanceY", 0, 2, 0, 1, Q("1 mm")),
    Sketcher.Constraint("DistanceX", 1, 1, 1, 2, Q("0.8 mm")),
    Sketcher.Constraint("DistanceX", -1, 1, 0, 2, Q("3 mm")),
    Sketcher.Constraint("DistanceY", -1, 1, 0, 2, Q("3.54 mm")),
])
pad17 = doc.addObject("PartDesign::Pad", "Pad016")
body17.addObject(pad17)
pad17.Profile = sketch17
pad17.Length = 10
body18 = doc.addObject("PartDesign::Body", "Body017")

# Sketch on XY plane
sketch18 = doc.addObject("Sketcher::SketchObject", "Sketch017")
body18.addObject(sketch18)
sketch18.AttachmentSupport = (doc.getObject("XY_Plane017"), [""])
sketch18.MapMode = "FlatFace"
sketch18.AttachmentOffset = App.Placement(App.Vector(0, 0, -3), App.Rotation())
sketch18.addGeometry([
    Part.LineSegment(App.Vector(3, 7.08, 0), App.Vector(3, 6.08, 0)),
    Part.LineSegment(App.Vector(3, 6.08, 0), App.Vector(3.8, 6.08, 0)),
    Part.LineSegment(App.Vector(3.8, 6.08, 0), App.Vector(3.8, 7.08, 0)),
    Part.LineSegment(App.Vector(3.8, 7.08, 0), App.Vector(3, 7.08, 0)),
], False)
sketch18.addConstraint([
    Sketcher.Constraint("Coincident", 0, 2, 1, 1),
    Sketcher.Constraint("Coincident", 1, 2, 2, 1),
    Sketcher.Constraint("Coincident", 2, 2, 3, 1),
    Sketcher.Constraint("Coincident", 3, 2, 0, 1),
    Sketcher.Constraint("Vertical", 0),
    Sketcher.Constraint("Horizontal", 1),
    Sketcher.Constraint("Vertical", 2),
    Sketcher.Constraint("Horizontal", 3),
    Sketcher.Constraint("DistanceY", 0, 2, 0, 1, Q("1 mm")),
    Sketcher.Constraint("DistanceX", 1, 1, 1, 2, Q("0.8 mm")),
    Sketcher.Constraint("DistanceX", -1, 1, 0, 2, Q("3 mm")),
    Sketcher.Constraint("DistanceY", -1, 1, 0, 2, Q("6.08 mm")),
])
pad18 = doc.addObject("PartDesign::Pad", "Pad017")
body18.addObject(pad18)
pad18.Profile = sketch18
pad18.Length = 10
body19 = doc.addObject("PartDesign::Body", "Body018")

# Sketch on XY plane
sketch19 = doc.addObject("Sketcher::SketchObject", "Sketch018")
body19.addObject(sketch19)
sketch19.AttachmentSupport = (doc.getObject("XY_Plane018"), [""])
sketch19.MapMode = "FlatFace"
sketch19.AttachmentOffset = App.Placement(App.Vector(0, 0, -3), App.Rotation())
sketch19.addGeometry([
    Part.LineSegment(App.Vector(3, 9.62, 0), App.Vector(3, 8.62, 0)),
    Part.LineSegment(App.Vector(3, 8.62, 0), App.Vector(3.8, 8.62, 0)),
    Part.LineSegment(App.Vector(3.8, 8.62, 0), App.Vector(3.8, 9.62, 0)),
    Part.LineSegment(App.Vector(3.8, 9.62, 0), App.Vector(3, 9.62, 0)),
], False)
sketch19.addConstraint([
    Sketcher.Constraint("Coincident", 0, 2, 1, 1),
    Sketcher.Constraint("Coincident", 1, 2, 2, 1),
    Sketcher.Constraint("Coincident", 2, 2, 3, 1),
    Sketcher.Constraint("Coincident", 3, 2, 0, 1),
    Sketcher.Constraint("Vertical", 0),
    Sketcher.Constraint("Horizontal", 1),
    Sketcher.Constraint("Vertical", 2),
    Sketcher.Constraint("Horizontal", 3),
    Sketcher.Constraint("DistanceY", 0, 2, 0, 1, Q("1 mm")),
    Sketcher.Constraint("DistanceX", 1, 1, 1, 2, Q("0.8 mm")),
    Sketcher.Constraint("DistanceX", -1, 1, 0, 2, Q("3 mm")),
    Sketcher.Constraint("DistanceY", -1, 1, 0, 2, Q("8.62 mm")),
])
pad19 = doc.addObject("PartDesign::Pad", "Pad018")
body19.addObject(pad19)
pad19.Profile = sketch19
pad19.Length = 10
body20 = doc.addObject("PartDesign::Body", "Body019")

# Sketch on XY plane
sketch20 = doc.addObject("Sketcher::SketchObject", "Sketch019")
body20.addObject(sketch20)
sketch20.AttachmentSupport = (doc.getObject("XY_Plane019"), [""])
sketch20.MapMode = "FlatFace"
sketch20.AttachmentOffset = App.Placement(App.Vector(0, 0, -3), App.Rotation())
sketch20.addGeometry([
    Part.LineSegment(App.Vector(3, 12.16, 0), App.Vector(3, 11.16, 0)),
    Part.LineSegment(App.Vector(3, 11.16, 0), App.Vector(3.8, 11.16, 0)),
    Part.LineSegment(App.Vector(3.8, 11.16, 0), App.Vector(3.8, 12.16, 0)),
    Part.LineSegment(App.Vector(3.8, 12.16, 0), App.Vector(3, 12.16, 0)),
], False)
sketch20.addConstraint([
    Sketcher.Constraint("Coincident", 0, 2, 1, 1),
    Sketcher.Constraint("Coincident", 1, 2, 2, 1),
    Sketcher.Constraint("Coincident", 2, 2, 3, 1),
    Sketcher.Constraint("Coincident", 3, 2, 0, 1),
    Sketcher.Constraint("Vertical", 0),
    Sketcher.Constraint("Horizontal", 1),
    Sketcher.Constraint("Vertical", 2),
    Sketcher.Constraint("Horizontal", 3),
    Sketcher.Constraint("DistanceY", 0, 2, 0, 1, Q("1 mm")),
    Sketcher.Constraint("DistanceX", 1, 1, 1, 2, Q("0.8 mm")),
    Sketcher.Constraint("DistanceX", -1, 1, 0, 2, Q("3 mm")),
    Sketcher.Constraint("DistanceY", -1, 1, 0, 2, Q("11.16 mm")),
])
pad20 = doc.addObject("PartDesign::Pad", "Pad019")
body20.addObject(pad20)
pad20.Profile = sketch20
pad20.Length = 10
body21 = doc.addObject("PartDesign::Body", "Body020")

# Sketch on XY plane
sketch21 = doc.addObject("Sketcher::SketchObject", "Sketch020")
body21.addObject(sketch21)
sketch21.AttachmentSupport = (doc.getObject("XY_Plane020"), [""])
sketch21.MapMode = "FlatFace"
sketch21.AttachmentOffset = App.Placement(App.Vector(0, 0, -3), App.Rotation())
sketch21.addGeometry([
    Part.LineSegment(App.Vector(3, 14.7, 0), App.Vector(3, 13.7, 0)),
    Part.LineSegment(App.Vector(3, 13.7, 0), App.Vector(3.8, 13.7, 0)),
    Part.LineSegment(App.Vector(3.8, 13.7, 0), App.Vector(3.8, 14.7, 0)),
    Part.LineSegment(App.Vector(3.8, 14.7, 0), App.Vector(3, 14.7, 0)),
], False)
sketch21.addConstraint([
    Sketcher.Constraint("Coincident", 0, 2, 1, 1),
    Sketcher.Constraint("Coincident", 1, 2, 2, 1),
    Sketcher.Constraint("Coincident", 2, 2, 3, 1),
    Sketcher.Constraint("Coincident", 3, 2, 0, 1),
    Sketcher.Constraint("Vertical", 0),
    Sketcher.Constraint("Horizontal", 1),
    Sketcher.Constraint("Vertical", 2),
    Sketcher.Constraint("Horizontal", 3),
    Sketcher.Constraint("DistanceY", 0, 2, 0, 1, Q("1 mm")),
    Sketcher.Constraint("DistanceX", 1, 1, 1, 2, Q("0.8 mm")),
    Sketcher.Constraint("DistanceX", -1, 1, 0, 2, Q("3 mm")),
    Sketcher.Constraint("DistanceY", -1, 1, 0, 2, Q("13.7 mm")),
])
pad21 = doc.addObject("PartDesign::Pad", "Pad020")
body21.addObject(pad21)
pad21.Profile = sketch21
pad21.Length = 10
body22 = doc.addObject("PartDesign::Body", "Body021")

# Sketch on XY plane
sketch22 = doc.addObject("Sketcher::SketchObject", "Sketch021")
body22.addObject(sketch22)
sketch22.AttachmentSupport = (doc.getObject("XY_Plane021"), [""])
sketch22.MapMode = "FlatFace"
sketch22.AttachmentOffset = App.Placement(App.Vector(0, 0, -3), App.Rotation())
sketch22.addGeometry([
    Part.LineSegment(App.Vector(3, 17.24, 0), App.Vector(3, 16.24, 0)),
    Part.LineSegment(App.Vector(3, 16.24, 0), App.Vector(3.8, 16.24, 0)),
    Part.LineSegment(App.Vector(3.8, 16.24, 0), App.Vector(3.8, 17.24, 0)),
    Part.LineSegment(App.Vector(3.8, 17.24, 0), App.Vector(3, 17.24, 0)),
], False)
sketch22.addConstraint([
    Sketcher.Constraint("Coincident", 0, 2, 1, 1),
    Sketcher.Constraint("Coincident", 1, 2, 2, 1),
    Sketcher.Constraint("Coincident", 2, 2, 3, 1),
    Sketcher.Constraint("Coincident", 3, 2, 0, 1),
    Sketcher.Constraint("Vertical", 0),
    Sketcher.Constraint("Horizontal", 1),
    Sketcher.Constraint("Vertical", 2),
    Sketcher.Constraint("Horizontal", 3),
    Sketcher.Constraint("DistanceY", 0, 2, 0, 1, Q("1 mm")),
    Sketcher.Constraint("DistanceX", 1, 1, 1, 2, Q("0.8 mm")),
    Sketcher.Constraint("DistanceX", -1, 1, 0, 2, Q("3 mm")),
    Sketcher.Constraint("DistanceY", -1, 1, 0, 2, Q("16.24 mm")),
])
pad22 = doc.addObject("PartDesign::Pad", "Pad021")
body22.addObject(pad22)
pad22.Profile = sketch22
pad22.Length = 10
body23 = doc.addObject("PartDesign::Body", "Body022")

# Sketch on XY plane
sketch23 = doc.addObject("Sketcher::SketchObject", "Sketch022")
body23.addObject(sketch23)
sketch23.AttachmentSupport = (doc.getObject("XY_Plane022"), [""])
sketch23.MapMode = "FlatFace"
sketch23.AttachmentOffset = App.Placement(App.Vector(0, 0, -3), App.Rotation())
sketch23.addGeometry([
    Part.LineSegment(App.Vector(3, 19.78, 0), App.Vector(3, 18.78, 0)),
    Part.LineSegment(App.Vector(3, 18.78, 0), App.Vector(3.8, 18.78, 0)),
    Part.LineSegment(App.Vector(3.8, 18.78, 0), App.Vector(3.8, 19.78, 0)),
    Part.LineSegment(App.Vector(3.8, 19.78, 0), App.Vector(3, 19.78, 0)),
], False)
sketch23.addConstraint([
    Sketcher.Constraint("Coincident", 0, 2, 1, 1),
    Sketcher.Constraint("Coincident", 1, 2, 2, 1),
    Sketcher.Constraint("Coincident", 2, 2, 3, 1),
    Sketcher.Constraint("Coincident", 3, 2, 0, 1),
    Sketcher.Constraint("Vertical", 0),
    Sketcher.Constraint("Horizontal", 1),
    Sketcher.Constraint("Vertical", 2),
    Sketcher.Constraint("Horizontal", 3),
    Sketcher.Constraint("DistanceY", 0, 2, 0, 1, Q("1 mm")),
    Sketcher.Constraint("DistanceX", 1, 1, 1, 2, Q("0.8 mm")),
    Sketcher.Constraint("DistanceX", -1, 1, 0, 2, Q("3 mm")),
    Sketcher.Constraint("DistanceY", -1, 1, 0, 2, Q("18.78 mm")),
])
pad23 = doc.addObject("PartDesign::Pad", "Pad022")
body23.addObject(pad23)
pad23.Profile = sketch23
pad23.Length = 10
body24 = doc.addObject("PartDesign::Body", "Body023")
body24.AllowCompound = True

# Sketch on XY plane
sketch24 = doc.addObject("Sketcher::SketchObject", "Sketch023")
body24.addObject(sketch24)
sketch24.AttachmentSupport = (doc.getObject("XY_Plane023"), [""])
sketch24.MapMode = "FlatFace"
sketch24.AttachmentOffset = App.Placement(App.Vector(0, 0, -3), App.Rotation())
sketch24.addGeometry([
    Part.LineSegment(App.Vector(3, 2, 0), App.Vector(3, 1, 0)),
    Part.LineSegment(App.Vector(3, 1, 0), App.Vector(3.8, 1, 0)),
    Part.LineSegment(App.Vector(3.8, 1, 0), App.Vector(3.8, 2, 0)),
    Part.LineSegment(App.Vector(3.8, 2, 0), App.Vector(3, 2, 0)),
], False)
sketch24.addConstraint([
    Sketcher.Constraint("Coincident", 0, 2, 1, 1),
    Sketcher.Constraint("Coincident", 1, 2, 2, 1),
    Sketcher.Constraint("Coincident", 2, 2, 3, 1),
    Sketcher.Constraint("Coincident", 3, 2, 0, 1),
    Sketcher.Constraint("Vertical", 0),
    Sketcher.Constraint("Horizontal", 1),
    Sketcher.Constraint("Vertical", 2),
    Sketcher.Constraint("Horizontal", 3),
    Sketcher.Constraint("DistanceY", 0, 2, 0, 1, Q("1 mm")),
    Sketcher.Constraint("DistanceX", 1, 1, 1, 2, Q("0.8 mm")),
    Sketcher.Constraint("DistanceX", -1, 1, 0, 2, Q("3 mm")),
    Sketcher.Constraint("DistanceY", -1, 1, 0, 2, Q("1 mm")),
])
pad24 = doc.addObject("PartDesign::Pad", "Pad023")
body24.addObject(pad24)
pad24.Profile = sketch24
pad24.Length = 10
doc.recompute()

boolean15 = doc.addObject("PartDesign::Boolean", "Boolean014")
body24.addObject(boolean15)
boolean15.Type = "Fuse"
boolean15.addObjects([body17])
doc.recompute()

boolean16 = doc.addObject("PartDesign::Boolean", "Boolean015")
body24.addObject(boolean16)
boolean16.Type = "Fuse"
boolean16.addObjects([body18])
doc.recompute()

boolean17 = doc.addObject("PartDesign::Boolean", "Boolean016")
body24.addObject(boolean17)
boolean17.Type = "Fuse"
boolean17.addObjects([body19])
doc.recompute()

boolean18 = doc.addObject("PartDesign::Boolean", "Boolean017")
body24.addObject(boolean18)
boolean18.Type = "Fuse"
boolean18.addObjects([body20])
doc.recompute()

boolean19 = doc.addObject("PartDesign::Boolean", "Boolean018")
body24.addObject(boolean19)
boolean19.Type = "Fuse"
boolean19.addObjects([body21])
doc.recompute()

boolean20 = doc.addObject("PartDesign::Boolean", "Boolean019")
body24.addObject(boolean20)
boolean20.Type = "Fuse"
boolean20.addObjects([body22])
doc.recompute()

boolean21 = doc.addObject("PartDesign::Boolean", "Boolean020")
body24.addObject(boolean21)
boolean21.Type = "Fuse"
boolean21.addObjects([body23])
body25 = doc.addObject("PartDesign::Body", "Body024")

# Sketch on XY plane
sketch25 = doc.addObject("Sketcher::SketchObject", "Sketch024")
body25.addObject(sketch25)
sketch25.AttachmentSupport = (doc.getObject("XY_Plane024"), [""])
sketch25.MapMode = "FlatFace"
sketch25.addGeometry([
    Part.LineSegment(App.Vector(0, 21, 0), App.Vector(0, 0, 0)),
    Part.LineSegment(App.Vector(0, 0, 0), App.Vector(37, 0, 0)),
    Part.LineSegment(App.Vector(37, 0, 0), App.Vector(37, 21, 0)),
    Part.LineSegment(App.Vector(37, 21, 0), App.Vector(0, 21, 0)),
], False)
sketch25.addConstraint([
    Sketcher.Constraint("Coincident", 0, 2, 1, 1),
    Sketcher.Constraint("Coincident", 1, 2, 2, 1),
    Sketcher.Constraint("Coincident", 2, 2, 3, 1),
    Sketcher.Constraint("Coincident", 3, 2, 0, 1),
    Sketcher.Constraint("Vertical", 0),
    Sketcher.Constraint("Horizontal", 1),
    Sketcher.Constraint("Vertical", 2),
    Sketcher.Constraint("Horizontal", 3),
    Sketcher.Constraint("Coincident", 0, 2, -1, 1),
    Sketcher.Constraint("DistanceX", 1, 1, 1, 2, Q("37 mm")),
    Sketcher.Constraint("DistanceY", 0, 2, 0, 1, Q("21 mm")),
])
pad25 = doc.addObject("PartDesign::Pad", "Pad024")
body25.addObject(pad25)
pad25.Profile = sketch25
pad25.Length = 5.5
doc.recompute()

boolean22 = doc.addObject("PartDesign::Boolean", "Boolean021")
body25.addObject(boolean22)
boolean22.Type = "Cut"
boolean22.addObjects([body24])
doc.recompute()

boolean23 = doc.addObject("PartDesign::Boolean", "Boolean022")
body25.addObject(boolean23)
boolean23.Type = "Cut"
boolean23.addObjects([body16])

doc.recompute()
